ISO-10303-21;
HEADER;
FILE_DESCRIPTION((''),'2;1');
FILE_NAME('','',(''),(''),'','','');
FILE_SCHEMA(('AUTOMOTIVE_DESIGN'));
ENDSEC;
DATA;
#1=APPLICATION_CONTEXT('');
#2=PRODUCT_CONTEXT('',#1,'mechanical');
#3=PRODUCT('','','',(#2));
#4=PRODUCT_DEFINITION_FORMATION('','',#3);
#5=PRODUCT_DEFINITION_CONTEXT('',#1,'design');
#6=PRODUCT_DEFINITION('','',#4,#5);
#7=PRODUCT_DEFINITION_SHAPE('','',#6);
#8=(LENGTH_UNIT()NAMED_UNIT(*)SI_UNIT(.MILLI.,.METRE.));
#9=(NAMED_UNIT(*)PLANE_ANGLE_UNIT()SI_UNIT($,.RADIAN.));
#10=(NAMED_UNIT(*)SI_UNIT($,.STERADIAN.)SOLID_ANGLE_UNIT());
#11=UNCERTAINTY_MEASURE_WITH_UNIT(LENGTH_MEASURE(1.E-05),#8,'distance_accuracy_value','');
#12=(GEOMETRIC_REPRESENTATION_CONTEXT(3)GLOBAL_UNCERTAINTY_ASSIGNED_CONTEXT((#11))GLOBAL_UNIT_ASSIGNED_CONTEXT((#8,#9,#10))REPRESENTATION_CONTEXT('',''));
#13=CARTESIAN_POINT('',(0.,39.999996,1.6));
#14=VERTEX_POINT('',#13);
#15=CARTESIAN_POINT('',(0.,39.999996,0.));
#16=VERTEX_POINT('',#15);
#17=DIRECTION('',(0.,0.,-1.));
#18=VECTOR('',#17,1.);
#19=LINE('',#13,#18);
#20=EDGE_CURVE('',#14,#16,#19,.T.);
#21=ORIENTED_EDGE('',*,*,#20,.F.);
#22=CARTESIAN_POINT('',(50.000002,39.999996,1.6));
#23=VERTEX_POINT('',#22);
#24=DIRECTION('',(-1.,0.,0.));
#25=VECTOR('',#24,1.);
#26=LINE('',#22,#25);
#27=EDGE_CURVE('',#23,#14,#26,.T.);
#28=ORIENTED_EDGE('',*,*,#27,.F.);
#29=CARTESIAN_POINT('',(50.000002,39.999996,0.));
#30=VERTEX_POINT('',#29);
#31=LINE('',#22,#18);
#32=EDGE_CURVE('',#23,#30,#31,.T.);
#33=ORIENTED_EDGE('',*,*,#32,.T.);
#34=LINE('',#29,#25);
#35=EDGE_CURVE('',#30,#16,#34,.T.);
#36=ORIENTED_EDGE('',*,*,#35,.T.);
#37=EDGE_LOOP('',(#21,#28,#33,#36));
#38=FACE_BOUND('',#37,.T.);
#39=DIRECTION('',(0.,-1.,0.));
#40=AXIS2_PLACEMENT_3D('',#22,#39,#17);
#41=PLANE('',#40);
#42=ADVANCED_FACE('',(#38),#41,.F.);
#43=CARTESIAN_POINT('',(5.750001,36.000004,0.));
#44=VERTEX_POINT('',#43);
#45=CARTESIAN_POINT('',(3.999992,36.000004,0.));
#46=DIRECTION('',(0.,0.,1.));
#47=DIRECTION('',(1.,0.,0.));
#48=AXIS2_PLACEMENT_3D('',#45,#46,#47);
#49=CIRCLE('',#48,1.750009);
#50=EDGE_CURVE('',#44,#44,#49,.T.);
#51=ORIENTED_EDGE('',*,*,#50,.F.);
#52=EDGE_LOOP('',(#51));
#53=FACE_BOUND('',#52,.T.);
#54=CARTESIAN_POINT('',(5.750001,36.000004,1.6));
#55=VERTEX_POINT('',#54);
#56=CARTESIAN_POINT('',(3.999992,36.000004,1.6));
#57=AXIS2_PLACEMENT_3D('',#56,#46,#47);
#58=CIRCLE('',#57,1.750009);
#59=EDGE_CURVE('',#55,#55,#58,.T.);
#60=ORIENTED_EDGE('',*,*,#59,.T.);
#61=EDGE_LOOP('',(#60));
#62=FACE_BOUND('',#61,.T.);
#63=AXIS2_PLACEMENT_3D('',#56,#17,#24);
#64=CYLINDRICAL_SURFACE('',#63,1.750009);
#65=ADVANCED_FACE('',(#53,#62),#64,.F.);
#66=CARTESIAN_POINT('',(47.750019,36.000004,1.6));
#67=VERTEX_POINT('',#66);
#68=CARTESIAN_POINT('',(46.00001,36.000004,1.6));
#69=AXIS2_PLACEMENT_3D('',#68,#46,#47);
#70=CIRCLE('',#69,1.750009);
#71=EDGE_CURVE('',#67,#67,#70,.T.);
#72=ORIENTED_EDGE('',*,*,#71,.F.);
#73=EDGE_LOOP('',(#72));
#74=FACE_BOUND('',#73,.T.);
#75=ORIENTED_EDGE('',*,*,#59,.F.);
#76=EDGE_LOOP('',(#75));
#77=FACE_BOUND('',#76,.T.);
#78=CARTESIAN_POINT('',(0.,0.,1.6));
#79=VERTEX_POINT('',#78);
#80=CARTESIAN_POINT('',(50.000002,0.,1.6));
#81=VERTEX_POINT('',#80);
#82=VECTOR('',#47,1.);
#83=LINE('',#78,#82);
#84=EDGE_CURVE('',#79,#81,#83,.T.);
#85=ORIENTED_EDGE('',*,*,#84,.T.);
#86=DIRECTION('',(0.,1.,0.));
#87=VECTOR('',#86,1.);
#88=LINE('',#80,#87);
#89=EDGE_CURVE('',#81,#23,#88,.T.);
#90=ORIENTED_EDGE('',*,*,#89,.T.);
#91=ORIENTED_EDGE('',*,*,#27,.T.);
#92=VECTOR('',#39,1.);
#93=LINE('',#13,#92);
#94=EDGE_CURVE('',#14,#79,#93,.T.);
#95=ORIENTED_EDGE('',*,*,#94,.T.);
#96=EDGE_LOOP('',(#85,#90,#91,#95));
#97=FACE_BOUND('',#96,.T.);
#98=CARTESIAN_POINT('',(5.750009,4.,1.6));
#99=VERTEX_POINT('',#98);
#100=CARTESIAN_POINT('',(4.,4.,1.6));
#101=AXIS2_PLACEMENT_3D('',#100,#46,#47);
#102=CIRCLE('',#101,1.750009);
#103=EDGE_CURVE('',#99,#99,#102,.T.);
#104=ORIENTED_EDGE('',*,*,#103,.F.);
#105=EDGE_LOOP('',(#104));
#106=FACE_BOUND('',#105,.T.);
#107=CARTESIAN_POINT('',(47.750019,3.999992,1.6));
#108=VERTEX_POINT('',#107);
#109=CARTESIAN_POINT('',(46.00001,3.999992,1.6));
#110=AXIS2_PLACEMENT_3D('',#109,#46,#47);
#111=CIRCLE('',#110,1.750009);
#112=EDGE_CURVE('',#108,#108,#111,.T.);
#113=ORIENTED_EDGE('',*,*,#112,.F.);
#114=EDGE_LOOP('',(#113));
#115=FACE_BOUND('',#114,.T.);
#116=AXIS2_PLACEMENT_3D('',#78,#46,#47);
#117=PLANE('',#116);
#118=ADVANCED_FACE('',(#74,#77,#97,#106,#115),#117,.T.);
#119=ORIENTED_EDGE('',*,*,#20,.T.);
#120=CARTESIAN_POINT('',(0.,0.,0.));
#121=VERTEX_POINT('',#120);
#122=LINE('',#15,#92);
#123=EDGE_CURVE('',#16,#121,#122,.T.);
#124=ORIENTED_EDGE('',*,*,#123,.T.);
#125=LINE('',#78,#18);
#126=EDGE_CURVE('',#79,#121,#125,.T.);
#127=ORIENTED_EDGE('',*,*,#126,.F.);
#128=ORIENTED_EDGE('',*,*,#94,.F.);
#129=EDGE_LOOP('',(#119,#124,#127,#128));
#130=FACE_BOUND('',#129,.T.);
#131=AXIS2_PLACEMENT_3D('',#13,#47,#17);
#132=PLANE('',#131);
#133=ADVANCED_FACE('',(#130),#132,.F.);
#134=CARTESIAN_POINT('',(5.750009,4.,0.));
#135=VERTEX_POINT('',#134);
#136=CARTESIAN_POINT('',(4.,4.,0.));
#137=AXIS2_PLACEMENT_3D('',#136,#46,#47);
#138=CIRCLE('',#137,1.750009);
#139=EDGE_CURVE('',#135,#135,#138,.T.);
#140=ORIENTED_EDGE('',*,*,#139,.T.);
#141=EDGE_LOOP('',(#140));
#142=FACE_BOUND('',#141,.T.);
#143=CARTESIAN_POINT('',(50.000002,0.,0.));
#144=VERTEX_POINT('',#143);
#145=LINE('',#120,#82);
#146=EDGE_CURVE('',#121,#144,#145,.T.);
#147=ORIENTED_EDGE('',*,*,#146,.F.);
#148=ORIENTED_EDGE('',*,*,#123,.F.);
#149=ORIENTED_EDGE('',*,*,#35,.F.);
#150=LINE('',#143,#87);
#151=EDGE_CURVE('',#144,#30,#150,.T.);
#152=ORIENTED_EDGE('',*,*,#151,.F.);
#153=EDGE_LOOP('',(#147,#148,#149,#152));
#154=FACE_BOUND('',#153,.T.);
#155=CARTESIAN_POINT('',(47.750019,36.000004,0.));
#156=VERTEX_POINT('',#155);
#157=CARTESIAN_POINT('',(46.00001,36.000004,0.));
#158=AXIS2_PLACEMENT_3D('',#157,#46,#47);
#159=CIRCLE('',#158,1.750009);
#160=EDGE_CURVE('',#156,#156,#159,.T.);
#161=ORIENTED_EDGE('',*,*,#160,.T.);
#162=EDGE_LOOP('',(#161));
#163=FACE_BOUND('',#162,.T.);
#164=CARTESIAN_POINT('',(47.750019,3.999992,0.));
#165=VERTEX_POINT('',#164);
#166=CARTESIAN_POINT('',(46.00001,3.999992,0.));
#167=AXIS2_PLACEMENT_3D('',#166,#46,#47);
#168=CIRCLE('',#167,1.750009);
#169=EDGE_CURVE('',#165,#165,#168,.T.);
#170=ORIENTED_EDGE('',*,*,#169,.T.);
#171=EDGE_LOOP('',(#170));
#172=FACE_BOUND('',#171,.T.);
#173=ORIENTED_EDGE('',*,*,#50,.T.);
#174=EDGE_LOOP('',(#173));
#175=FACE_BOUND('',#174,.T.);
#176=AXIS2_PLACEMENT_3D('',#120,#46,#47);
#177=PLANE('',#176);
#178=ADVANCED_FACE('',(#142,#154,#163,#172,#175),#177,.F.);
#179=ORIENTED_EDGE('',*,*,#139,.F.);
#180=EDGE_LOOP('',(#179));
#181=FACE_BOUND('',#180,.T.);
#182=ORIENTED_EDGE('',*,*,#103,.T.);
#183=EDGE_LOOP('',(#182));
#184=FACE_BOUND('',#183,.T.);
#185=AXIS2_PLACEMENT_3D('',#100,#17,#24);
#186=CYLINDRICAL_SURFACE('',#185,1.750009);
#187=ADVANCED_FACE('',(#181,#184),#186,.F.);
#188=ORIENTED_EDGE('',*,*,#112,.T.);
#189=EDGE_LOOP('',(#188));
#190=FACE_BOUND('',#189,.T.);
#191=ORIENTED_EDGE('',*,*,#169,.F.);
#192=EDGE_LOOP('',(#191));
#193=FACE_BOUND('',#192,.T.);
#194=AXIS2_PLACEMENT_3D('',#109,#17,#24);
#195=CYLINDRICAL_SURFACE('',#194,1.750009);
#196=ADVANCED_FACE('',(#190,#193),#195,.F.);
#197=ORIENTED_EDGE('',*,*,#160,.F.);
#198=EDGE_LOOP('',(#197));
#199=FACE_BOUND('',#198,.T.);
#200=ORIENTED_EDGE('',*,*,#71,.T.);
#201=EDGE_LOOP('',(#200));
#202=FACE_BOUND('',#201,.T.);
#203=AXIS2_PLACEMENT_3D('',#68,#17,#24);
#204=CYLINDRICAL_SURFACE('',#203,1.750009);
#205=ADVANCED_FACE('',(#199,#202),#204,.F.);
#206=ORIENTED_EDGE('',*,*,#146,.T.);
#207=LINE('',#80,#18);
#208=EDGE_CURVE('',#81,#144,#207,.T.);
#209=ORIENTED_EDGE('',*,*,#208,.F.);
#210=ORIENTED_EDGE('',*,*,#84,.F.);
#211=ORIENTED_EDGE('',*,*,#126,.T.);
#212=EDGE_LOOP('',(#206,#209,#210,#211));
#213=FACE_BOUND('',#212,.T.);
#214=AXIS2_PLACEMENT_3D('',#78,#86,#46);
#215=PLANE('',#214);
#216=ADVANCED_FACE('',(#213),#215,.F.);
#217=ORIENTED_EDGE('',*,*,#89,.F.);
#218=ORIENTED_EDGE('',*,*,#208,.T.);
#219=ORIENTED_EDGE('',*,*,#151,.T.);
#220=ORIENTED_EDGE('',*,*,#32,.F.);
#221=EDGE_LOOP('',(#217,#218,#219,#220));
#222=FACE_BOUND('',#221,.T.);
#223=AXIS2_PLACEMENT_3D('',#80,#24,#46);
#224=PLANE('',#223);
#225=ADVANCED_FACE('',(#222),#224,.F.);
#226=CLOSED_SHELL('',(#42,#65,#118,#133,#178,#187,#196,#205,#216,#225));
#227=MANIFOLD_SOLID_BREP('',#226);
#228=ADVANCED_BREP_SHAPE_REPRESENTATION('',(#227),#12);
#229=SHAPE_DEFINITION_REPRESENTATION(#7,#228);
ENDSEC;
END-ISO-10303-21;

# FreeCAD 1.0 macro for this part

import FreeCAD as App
import Part
import Sketcher
from FreeCAD import Vector


def add_polygon(sketch, points):
    """Adds a closed chain of lines whose ends are joined by coincident constraints."""
    first, n = sketch.GeometryCount, len(points)
    for a, b in zip(points, points[1:] + points[:1]):
        sketch.addGeometry(Part.LineSegment(App.Vector(*a, 0), App.Vector(*b, 0)), False)
    for i in range(n):
        sketch.addConstraint(Sketcher.Constraint("Coincident", first + i, 2, first + (i + 1) % n, 1))

doc = App.newDocument("Part")
body = doc.addObject("PartDesign::Body", "Body")

# Sketch on XY plane
sketch1 = body.newObject("Sketcher::SketchObject", "Sketch")
sketch1.AttachmentSupport = (doc.getObject("XY_Plane"), [""])
sketch1.MapMode = "FlatFace"
add_polygon(sketch1, [(0, 40), (0, 0), (50, 0), (50, 40)])  # lines 0-3
sketch1.addGeometry(Part.Circle(Vector(4, 4, 0), Vector(0, 0, 1), 1.8), False)  # 4
sketch1.addGeometry(Part.Circle(Vector(46, 4, 0), Vector(0, 0, 1), 1.8), False)  # 5
sketch1.addGeometry(Part.Circle(Vector(4, 36, 0), Vector(0, 0, 1), 1.8), False)  # 6
sketch1.addGeometry(Part.Circle(Vector(46, 36, 0), Vector(0, 0, 1), 1.8), False)  # 7
sketch1.addConstraint(Sketcher.Constraint("Vertical", 0))
sketch1.addConstraint(Sketcher.Constraint("Horizontal", 1))
sketch1.addConstraint(Sketcher.Constraint("Vertical", 2))
sketch1.addConstraint(Sketcher.Constraint("Horizontal", 3))
sketch1.addConstraint(Sketcher.Constraint("Coincident", 0, 2, -1, 1))
sketch1.addConstraint(Sketcher.Constraint("Equal", 4, 5))
sketch1.addConstraint(Sketcher.Constraint("Equal", 5, 6))
sketch1.addConstraint(Sketcher.Constraint("Equal", 6, 7))
sketch1.addConstraint(Sketcher.Constraint("Horizontal", 6, 3, 7, 3))
sketch1.addConstraint(Sketcher.Constraint("Vertical", 5, 3, 7, 3))
sketch1.addConstraint(Sketcher.Constraint("DistanceX", 1, 1, 1, 2, 50.000002))
sketch1.addConstraint(Sketcher.Constraint("DistanceX", -1, 1, 4, 3, 4.0))
sketch1.addConstraint(Sketcher.Constraint("DistanceY", -1, 1, 4, 3, 4.0))
sketch1.addConstraint(Sketcher.Constraint("Diameter", 4, 3.500018))
sketch1.addConstraint(Sketcher.Constraint("DistanceY", 0, 2, 0, 1, 39.999996))
sketch1.addConstraint(Sketcher.Constraint("DistanceX", -1, 1, 5, 3, 46.00001))
sketch1.addConstraint(Sketcher.Constraint("DistanceX", 6, 3, 1, 2, 46.00001))
sketch1.addConstraint(Sketcher.Constraint("DistanceY", 7, 3, 2, 2, 3.999992))
sketch1.addConstraint(Sketcher.Constraint("DistanceY", -1, 1, 5, 3, 3.999992))
pad1 = body.newObject("PartDesign::Pad", "Pad")
pad1.Profile = sketch1
pad1.Length = 1.6

doc.recompute()
